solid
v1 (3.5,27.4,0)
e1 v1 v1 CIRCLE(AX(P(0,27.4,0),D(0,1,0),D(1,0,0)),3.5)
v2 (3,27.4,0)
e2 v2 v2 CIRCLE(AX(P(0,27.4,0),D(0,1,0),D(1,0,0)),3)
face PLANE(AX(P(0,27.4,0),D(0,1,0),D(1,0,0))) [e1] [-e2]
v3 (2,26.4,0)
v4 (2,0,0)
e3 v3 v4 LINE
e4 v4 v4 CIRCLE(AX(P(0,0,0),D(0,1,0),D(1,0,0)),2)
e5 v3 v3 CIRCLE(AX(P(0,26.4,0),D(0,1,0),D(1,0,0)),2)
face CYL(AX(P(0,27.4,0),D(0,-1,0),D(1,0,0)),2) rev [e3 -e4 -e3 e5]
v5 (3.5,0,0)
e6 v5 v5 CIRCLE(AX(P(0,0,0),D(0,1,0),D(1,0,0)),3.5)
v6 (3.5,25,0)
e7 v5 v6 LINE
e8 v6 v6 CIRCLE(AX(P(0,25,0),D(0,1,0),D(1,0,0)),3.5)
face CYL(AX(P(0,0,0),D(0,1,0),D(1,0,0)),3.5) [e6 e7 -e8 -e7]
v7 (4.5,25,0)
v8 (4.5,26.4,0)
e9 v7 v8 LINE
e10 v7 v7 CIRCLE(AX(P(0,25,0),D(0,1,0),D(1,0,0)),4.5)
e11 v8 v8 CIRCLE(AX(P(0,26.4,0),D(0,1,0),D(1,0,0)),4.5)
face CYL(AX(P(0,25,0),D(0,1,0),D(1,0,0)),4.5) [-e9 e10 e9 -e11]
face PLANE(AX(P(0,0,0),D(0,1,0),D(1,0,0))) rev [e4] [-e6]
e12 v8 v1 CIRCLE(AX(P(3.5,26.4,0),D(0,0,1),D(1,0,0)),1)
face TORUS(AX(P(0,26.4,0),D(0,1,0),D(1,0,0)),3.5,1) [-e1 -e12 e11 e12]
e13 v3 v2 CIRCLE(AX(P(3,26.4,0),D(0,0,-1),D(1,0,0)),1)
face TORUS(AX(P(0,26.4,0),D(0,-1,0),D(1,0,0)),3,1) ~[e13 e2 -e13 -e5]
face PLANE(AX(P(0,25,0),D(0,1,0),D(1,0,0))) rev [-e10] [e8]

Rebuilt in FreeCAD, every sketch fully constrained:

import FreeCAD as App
import Part
import Sketcher
Q = App.Units.Quantity


def edges_at(feature, points):
    """Names of the edges that pass closest to the given points."""
    edges = feature.Shape.Edges
    near = lambda p: min(range(len(edges)), key=lambda i: edges[i].distToShape(Part.Vertex(*p))[0])
    return sorted({f"Edge{near(p) + 1}" for p in points})

doc = App.newDocument("Part")
body = doc.addObject("PartDesign::Body", "Body")

# Sketch on XY plane
sketch1 = body.newObject("Sketcher::SketchObject", "Sketch")
sketch1.AttachmentSupport = (doc.getObject("XY_Plane"), [""])
sketch1.MapMode = "FlatFace"
sketch1.addGeometry([
    Part.LineSegment(App.Vector(2, 27.4, 0), App.Vector(2, 0, 0)),  # 0
    Part.LineSegment(App.Vector(2, 0, 0), App.Vector(3.5, 0, 0)),  # 1
    Part.LineSegment(App.Vector(3.5, 0, 0), App.Vector(3.5, 25, 0)),  # 2
    Part.LineSegment(App.Vector(3.5, 25, 0), App.Vector(4.5, 25, 0)),  # 3
    Part.LineSegment(App.Vector(4.5, 25, 0), App.Vector(4.5, 27.4, 0)),  # 4
    Part.LineSegment(App.Vector(4.5, 27.4, 0), App.Vector(2, 27.4, 0)),  # 5
], False)
sketch1.addConstraint([
    Sketcher.Constraint("Coincident", 0, 2, 1, 1),
    Sketcher.Constraint("Coincident", 1, 2, 2, 1),
    Sketcher.Constraint("Coincident", 2, 2, 3, 1),
    Sketcher.Constraint("Coincident", 3, 2, 4, 1),
    Sketcher.Constraint("Coincident", 4, 2, 5, 1),
    Sketcher.Constraint("Coincident", 5, 2, 0, 1),
    Sketcher.Constraint("Vertical", 0),
    Sketcher.Constraint("Horizontal", 1),
    Sketcher.Constraint("Vertical", 2),
    Sketcher.Constraint("Horizontal", 3),
    Sketcher.Constraint("Vertical", 4),
    Sketcher.Constraint("Horizontal", 5),
    Sketcher.Constraint("PointOnObject", 0, 2, -1),
    Sketcher.Constraint("DistanceX", 3, 1, 3, 2, Q("1 mm")),
    Sketcher.Constraint("DistanceY", 2, 1, 2, 2, Q("25 mm")),
    Sketcher.Constraint("DistanceX", 1, 1, 1, 2, Q("1.5 mm")),
    Sketcher.Constraint("DistanceY", 0, 2, 0, 1, Q("27.4 mm")),
    Sketcher.Constraint("DistanceX", -1, 1, 0, 2, Q("2 mm")),
])
revolution = body.newObject("PartDesign::Revolution", "Revolution")
revolution.Profile = sketch1
revolution.ReferenceAxis = (sketch1, ["V_Axis"])
revolution.Angle = 360
doc.recompute()

fillet = body.newObject("PartDesign::Fillet", "Fillet")
fillet.Base = (revolution, edges_at(revolution, [(-4.5, 27.4, 0), (-2, 27.4, 0)]))
fillet.Radius = 1

doc.recompute()
